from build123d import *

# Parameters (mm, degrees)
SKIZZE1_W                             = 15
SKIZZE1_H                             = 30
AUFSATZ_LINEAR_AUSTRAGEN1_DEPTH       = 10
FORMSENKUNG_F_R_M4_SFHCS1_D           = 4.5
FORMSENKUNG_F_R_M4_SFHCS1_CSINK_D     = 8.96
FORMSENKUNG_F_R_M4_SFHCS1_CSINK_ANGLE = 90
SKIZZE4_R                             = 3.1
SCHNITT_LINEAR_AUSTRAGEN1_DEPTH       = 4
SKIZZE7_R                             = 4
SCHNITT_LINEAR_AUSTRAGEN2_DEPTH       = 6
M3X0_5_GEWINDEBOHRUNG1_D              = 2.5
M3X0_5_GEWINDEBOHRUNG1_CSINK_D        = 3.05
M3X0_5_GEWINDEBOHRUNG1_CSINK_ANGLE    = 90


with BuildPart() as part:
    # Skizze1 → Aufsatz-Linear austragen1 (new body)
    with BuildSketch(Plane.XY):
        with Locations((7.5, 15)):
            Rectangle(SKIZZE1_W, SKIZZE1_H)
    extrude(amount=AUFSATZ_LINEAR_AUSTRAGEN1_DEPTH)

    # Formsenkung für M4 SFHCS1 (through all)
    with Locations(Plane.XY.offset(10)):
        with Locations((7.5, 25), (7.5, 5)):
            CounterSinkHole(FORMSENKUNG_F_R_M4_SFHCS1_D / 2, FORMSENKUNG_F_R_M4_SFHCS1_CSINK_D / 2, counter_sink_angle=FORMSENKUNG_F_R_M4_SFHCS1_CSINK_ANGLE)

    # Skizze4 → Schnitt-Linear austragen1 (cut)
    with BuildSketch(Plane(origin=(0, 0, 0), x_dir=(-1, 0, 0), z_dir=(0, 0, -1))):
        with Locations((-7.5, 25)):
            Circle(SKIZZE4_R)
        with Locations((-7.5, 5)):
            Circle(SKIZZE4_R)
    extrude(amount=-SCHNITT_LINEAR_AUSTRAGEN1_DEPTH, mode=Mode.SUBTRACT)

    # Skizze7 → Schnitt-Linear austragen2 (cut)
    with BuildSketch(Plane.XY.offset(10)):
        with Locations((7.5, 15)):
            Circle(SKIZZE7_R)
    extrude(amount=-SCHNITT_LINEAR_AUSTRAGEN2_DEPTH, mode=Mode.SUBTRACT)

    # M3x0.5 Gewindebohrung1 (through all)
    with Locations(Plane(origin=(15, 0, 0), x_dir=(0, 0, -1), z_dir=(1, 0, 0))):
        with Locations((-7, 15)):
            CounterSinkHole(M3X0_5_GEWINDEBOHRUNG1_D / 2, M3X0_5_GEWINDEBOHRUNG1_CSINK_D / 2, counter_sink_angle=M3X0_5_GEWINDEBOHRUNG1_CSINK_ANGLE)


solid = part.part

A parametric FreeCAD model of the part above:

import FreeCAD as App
import Part
import Sketcher


def add_polygon(sketch, points):
    """Adds a closed chain of lines whose ends are joined by coincident constraints."""
    first, n = sketch.GeometryCount, len(points)
    for a, b in zip(points, points[1:] + points[:1]):
        sketch.addGeometry(Part.LineSegment(App.Vector(*a, 0), App.Vector(*b, 0)), False)
    for i in range(n):
        sketch.addConstraint(Sketcher.Constraint("Coincident", first + i, 2, first + (i + 1) % n, 1))

doc = App.newDocument("Part")
params = doc.addObject("Spreadsheet::Sheet", "Params")
for row, (alias, value) in enumerate([
    ("sketch1_width", "15 mm"),
    ("sketch1_height", "30 mm"),
    ("pad1_length", "10 mm"),
    ("sketch2_diameter", "4.5 mm"),
    ("hole_diameter", "4.5 mm"),
    ("hole_csink_diameter", "8.96 mm"),
    ("sketch3_diameter", "6.2 mm"),
    ("pocket1_length", "4 mm"),
    ("sketch4_diameter", "8 mm"),
    ("pocket2_length", "6 mm"),
    ("sketch5_diameter", "2.5 mm"),
    ("hole2_diameter", "2.5 mm"),
    ("hole2_csink_diameter", "3.05 mm"),
], start=1):
    params.set(f"A{row}", alias)
    params.set(f"B{row}", "=" + value)
    params.setAlias(f"B{row}", alias)

body = doc.addObject("PartDesign::Body", "Body")

sketch1 = body.newObject("Sketcher::SketchObject", "Sketch")
sketch1.AttachmentSupport = (doc.getObject("XY_Plane"), [""])
sketch1.MapMode = "FlatFace"
add_polygon(sketch1, [(0, 30), (0, 0), (15, 0), (15, 30)])
sketch1.addConstraint([
    Sketcher.Constraint("Vertical", 0),
    Sketcher.Constraint("Horizontal", 1),
    Sketcher.Constraint("Vertical", 2),
    Sketcher.Constraint("Horizontal", 3),
    Sketcher.Constraint("Coincident", 0, 2, -1, 1),
    Sketcher.Constraint("DistanceX", 1, 1, 1, 2, 15.0),
    Sketcher.Constraint("DistanceY", 0, 2, 0, 1, 30.0),
])
sketch1.setExpression("Constraints[9]", "Params.sketch1_width")
sketch1.setExpression("Constraints[10]", "Params.sketch1_height")
pad1 = body.newObject("PartDesign::Pad", "Pad")
pad1.Profile = sketch1
pad1.setExpression("Length", "Params.pad1_length")

sketch2 = body.newObject("Sketcher::SketchObject", "Sketch001")
sketch2.AttachmentSupport = (doc.getObject("XY_Plane"), [""])
sketch2.MapMode = "FlatFace"
sketch2.AttachmentOffset = App.Placement(App.Vector(0, 0, 10), App.Rotation())
sketch2.addGeometry([
    Part.Circle(App.Vector(7.5, 25, 0), App.Vector(0, 0, 1), 2.2),
    Part.Circle(App.Vector(7.5, 5, 0), App.Vector(0, 0, 1), 2.2),
], False)
sketch2.addConstraint([
    Sketcher.Constraint("Equal", 0, 1),
    Sketcher.Constraint("Vertical", 0, 3, 1, 3),
    Sketcher.Constraint("Diameter", 0, 4.5),
    Sketcher.Constraint("DistanceY", -1, 1, 0, 3, 25.0),
    Sketcher.Constraint("DistanceY", -1, 1, 1, 3, 5.0),
    Sketcher.Constraint("DistanceX", -1, 1, 0, 3, 7.5),
])
sketch2.setExpression("Constraints[2]", "Params.sketch2_diameter")
doc.recompute()
hole = body.newObject("PartDesign::Hole", "Hole")
hole.Profile = sketch2
hole.ThreadType = "None"
hole.setExpression("Diameter", "Params.hole_diameter")
hole.DepthType = "ThroughAll"
hole.HoleCutType = "Countersink"
hole.setExpression("HoleCutDiameter", "Params.hole_csink_diameter")
hole.HoleCutCountersinkAngle = 90

sketch3 = body.newObject("Sketcher::SketchObject", "Sketch002")
sketch3.AttachmentSupport = (doc.getObject("XY_Plane"), [""])
sketch3.MapMode = "FlatFace"
sketch3.addGeometry([
    Part.Circle(App.Vector(7.5, 25, 0), App.Vector(0, 0, 1), 3.1),
    Part.Circle(App.Vector(7.5, 5, 0), App.Vector(0, 0, 1), 3.1),
], False)
sketch3.addConstraint([
    Sketcher.Constraint("Equal", 0, 1),
    Sketcher.Constraint("Vertical", 0, 3, 1, 3),
    Sketcher.Constraint("Diameter", 0, 6.2),
    Sketcher.Constraint("DistanceY", -1, 1, 0, 3, 25.0),
    Sketcher.Constraint("DistanceY", -1, 1, 1, 3, 5.0),
    Sketcher.Constraint("DistanceX", -1, 1, 0, 3, 7.5),
])
sketch3.setExpression("Constraints[2]", "Params.sketch3_diameter")
pocket1 = body.newObject("PartDesign::Pocket", "Pocket")
pocket1.Profile = sketch3
pocket1.setExpression("Length", "Params.pocket1_length")
pocket1.Reversed = True

sketch4 = body.newObject("Sketcher::SketchObject", "Sketch003")
sketch4.AttachmentSupport = (doc.getObject("XY_Plane"), [""])
sketch4.MapMode = "FlatFace"
sketch4.AttachmentOffset = App.Placement(App.Vector(0, 0, 10), App.Rotation())
sketch4.addGeometry(Part.Circle(App.Vector(7.5, 15, 0), App.Vector(0, 0, 1), 4), False)
sketch4.addConstraint([
    Sketcher.Constraint("Diameter", 0, 8.0),
    Sketcher.Constraint("DistanceY", -1, 1, 0, 3, 15.0),
    Sketcher.Constraint("DistanceX", -1, 1, 0, 3, 7.5),
])
sketch4.setExpression("Constraints[0]", "Params.sketch4_diameter")
pocket2 = body.newObject("PartDesign::Pocket", "Pocket001")
pocket2.Profile = sketch4
pocket2.setExpression("Length", "Params.pocket2_length")

sketch5 = body.newObject("Sketcher::SketchObject", "Sketch004")
sketch5.AttachmentSupport = (doc.getObject("YZ_Plane"), [""])
sketch5.MapMode = "FlatFace"
sketch5.AttachmentOffset = App.Placement(App.Vector(0, 0, 15), App.Rotation())
sketch5.addGeometry(Part.Circle(App.Vector(15, 7, 0), App.Vector(0, 0, 1), 1.2), False)
sketch5.addConstraint([
    Sketcher.Constraint("Diameter", 0, 2.5),
    Sketcher.Constraint("DistanceX", -1, 1, 0, 3, 15.0),
    Sketcher.Constraint("DistanceY", -1, 1, 0, 3, 7.0),
])
sketch5.setExpression("Constraints[0]", "Params.sketch5_diameter")
doc.recompute()
hole2 = body.newObject("PartDesign::Hole", "Hole001")
hole2.Profile = sketch5
hole2.ThreadType = "None"
hole2.setExpression("Diameter", "Params.hole2_diameter")
hole2.DepthType = "ThroughAll"
hole2.HoleCutType = "Countersink"
hole2.setExpression("HoleCutDiameter", "Params.hole2_csink_diameter")
hole2.HoleCutCountersinkAngle = 90

doc.recompute()
